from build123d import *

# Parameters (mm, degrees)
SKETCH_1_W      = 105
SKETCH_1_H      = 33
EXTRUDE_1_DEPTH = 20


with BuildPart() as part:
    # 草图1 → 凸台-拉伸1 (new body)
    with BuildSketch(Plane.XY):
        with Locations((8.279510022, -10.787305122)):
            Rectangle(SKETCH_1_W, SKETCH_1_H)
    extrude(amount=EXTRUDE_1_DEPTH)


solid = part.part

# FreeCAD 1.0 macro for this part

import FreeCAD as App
import Part
import Sketcher

doc = App.newDocument("Part")
body = doc.addObject("PartDesign::Body", "Body")

sketch1 = body.newObject("Sketcher::SketchObject", "Sketch")
sketch1.AttachmentSupport = (doc.getObject("XY_Plane"), [""])
sketch1.MapMode = "FlatFace"
sketch1.addGeometry([
    Part.LineSegment(App.Vector(-44, 6, 0), App.Vector(-44, -27, 0)),
    Part.LineSegment(App.Vector(-44, -27, 0), App.Vector(61, -27, 0)),
    Part.LineSegment(App.Vector(61, -27, 0), App.Vector(61, 6, 0)),
    Part.LineSegment(App.Vector(61, 6, 0), App.Vector(-44, 6, 0)),
], False)
sketch1.addConstraint([
    Sketcher.Constraint("Coincident", 0, 2, 1, 1),
    Sketcher.Constraint("Coincident", 1, 2, 2, 1),
    Sketcher.Constraint("Coincident", 2, 2, 3, 1),
    Sketcher.Constraint("Coincident", 3, 2, 0, 1),
    Sketcher.Constraint("Vertical", 0),
    Sketcher.Constraint("Horizontal", 1),
    Sketcher.Constraint("Vertical", 2),
    Sketcher.Constraint("Horizontal", 3),
    Sketcher.Constraint("DistanceX", 1, 1, 1, 2, 105.0),
    Sketcher.Constraint("DistanceY", 0, 2, 0, 1, 33.0),
    Sketcher.Constraint("DistanceX", 0, 2, -1, 1, 44.22049),
    Sketcher.Constraint("DistanceY", 0, 2, -1, 1, 27.287305),
])
pad1 = body.newObject("PartDesign::Pad", "Pad")
pad1.Profile = sketch1
pad1.Length = 20

doc.recompute()
